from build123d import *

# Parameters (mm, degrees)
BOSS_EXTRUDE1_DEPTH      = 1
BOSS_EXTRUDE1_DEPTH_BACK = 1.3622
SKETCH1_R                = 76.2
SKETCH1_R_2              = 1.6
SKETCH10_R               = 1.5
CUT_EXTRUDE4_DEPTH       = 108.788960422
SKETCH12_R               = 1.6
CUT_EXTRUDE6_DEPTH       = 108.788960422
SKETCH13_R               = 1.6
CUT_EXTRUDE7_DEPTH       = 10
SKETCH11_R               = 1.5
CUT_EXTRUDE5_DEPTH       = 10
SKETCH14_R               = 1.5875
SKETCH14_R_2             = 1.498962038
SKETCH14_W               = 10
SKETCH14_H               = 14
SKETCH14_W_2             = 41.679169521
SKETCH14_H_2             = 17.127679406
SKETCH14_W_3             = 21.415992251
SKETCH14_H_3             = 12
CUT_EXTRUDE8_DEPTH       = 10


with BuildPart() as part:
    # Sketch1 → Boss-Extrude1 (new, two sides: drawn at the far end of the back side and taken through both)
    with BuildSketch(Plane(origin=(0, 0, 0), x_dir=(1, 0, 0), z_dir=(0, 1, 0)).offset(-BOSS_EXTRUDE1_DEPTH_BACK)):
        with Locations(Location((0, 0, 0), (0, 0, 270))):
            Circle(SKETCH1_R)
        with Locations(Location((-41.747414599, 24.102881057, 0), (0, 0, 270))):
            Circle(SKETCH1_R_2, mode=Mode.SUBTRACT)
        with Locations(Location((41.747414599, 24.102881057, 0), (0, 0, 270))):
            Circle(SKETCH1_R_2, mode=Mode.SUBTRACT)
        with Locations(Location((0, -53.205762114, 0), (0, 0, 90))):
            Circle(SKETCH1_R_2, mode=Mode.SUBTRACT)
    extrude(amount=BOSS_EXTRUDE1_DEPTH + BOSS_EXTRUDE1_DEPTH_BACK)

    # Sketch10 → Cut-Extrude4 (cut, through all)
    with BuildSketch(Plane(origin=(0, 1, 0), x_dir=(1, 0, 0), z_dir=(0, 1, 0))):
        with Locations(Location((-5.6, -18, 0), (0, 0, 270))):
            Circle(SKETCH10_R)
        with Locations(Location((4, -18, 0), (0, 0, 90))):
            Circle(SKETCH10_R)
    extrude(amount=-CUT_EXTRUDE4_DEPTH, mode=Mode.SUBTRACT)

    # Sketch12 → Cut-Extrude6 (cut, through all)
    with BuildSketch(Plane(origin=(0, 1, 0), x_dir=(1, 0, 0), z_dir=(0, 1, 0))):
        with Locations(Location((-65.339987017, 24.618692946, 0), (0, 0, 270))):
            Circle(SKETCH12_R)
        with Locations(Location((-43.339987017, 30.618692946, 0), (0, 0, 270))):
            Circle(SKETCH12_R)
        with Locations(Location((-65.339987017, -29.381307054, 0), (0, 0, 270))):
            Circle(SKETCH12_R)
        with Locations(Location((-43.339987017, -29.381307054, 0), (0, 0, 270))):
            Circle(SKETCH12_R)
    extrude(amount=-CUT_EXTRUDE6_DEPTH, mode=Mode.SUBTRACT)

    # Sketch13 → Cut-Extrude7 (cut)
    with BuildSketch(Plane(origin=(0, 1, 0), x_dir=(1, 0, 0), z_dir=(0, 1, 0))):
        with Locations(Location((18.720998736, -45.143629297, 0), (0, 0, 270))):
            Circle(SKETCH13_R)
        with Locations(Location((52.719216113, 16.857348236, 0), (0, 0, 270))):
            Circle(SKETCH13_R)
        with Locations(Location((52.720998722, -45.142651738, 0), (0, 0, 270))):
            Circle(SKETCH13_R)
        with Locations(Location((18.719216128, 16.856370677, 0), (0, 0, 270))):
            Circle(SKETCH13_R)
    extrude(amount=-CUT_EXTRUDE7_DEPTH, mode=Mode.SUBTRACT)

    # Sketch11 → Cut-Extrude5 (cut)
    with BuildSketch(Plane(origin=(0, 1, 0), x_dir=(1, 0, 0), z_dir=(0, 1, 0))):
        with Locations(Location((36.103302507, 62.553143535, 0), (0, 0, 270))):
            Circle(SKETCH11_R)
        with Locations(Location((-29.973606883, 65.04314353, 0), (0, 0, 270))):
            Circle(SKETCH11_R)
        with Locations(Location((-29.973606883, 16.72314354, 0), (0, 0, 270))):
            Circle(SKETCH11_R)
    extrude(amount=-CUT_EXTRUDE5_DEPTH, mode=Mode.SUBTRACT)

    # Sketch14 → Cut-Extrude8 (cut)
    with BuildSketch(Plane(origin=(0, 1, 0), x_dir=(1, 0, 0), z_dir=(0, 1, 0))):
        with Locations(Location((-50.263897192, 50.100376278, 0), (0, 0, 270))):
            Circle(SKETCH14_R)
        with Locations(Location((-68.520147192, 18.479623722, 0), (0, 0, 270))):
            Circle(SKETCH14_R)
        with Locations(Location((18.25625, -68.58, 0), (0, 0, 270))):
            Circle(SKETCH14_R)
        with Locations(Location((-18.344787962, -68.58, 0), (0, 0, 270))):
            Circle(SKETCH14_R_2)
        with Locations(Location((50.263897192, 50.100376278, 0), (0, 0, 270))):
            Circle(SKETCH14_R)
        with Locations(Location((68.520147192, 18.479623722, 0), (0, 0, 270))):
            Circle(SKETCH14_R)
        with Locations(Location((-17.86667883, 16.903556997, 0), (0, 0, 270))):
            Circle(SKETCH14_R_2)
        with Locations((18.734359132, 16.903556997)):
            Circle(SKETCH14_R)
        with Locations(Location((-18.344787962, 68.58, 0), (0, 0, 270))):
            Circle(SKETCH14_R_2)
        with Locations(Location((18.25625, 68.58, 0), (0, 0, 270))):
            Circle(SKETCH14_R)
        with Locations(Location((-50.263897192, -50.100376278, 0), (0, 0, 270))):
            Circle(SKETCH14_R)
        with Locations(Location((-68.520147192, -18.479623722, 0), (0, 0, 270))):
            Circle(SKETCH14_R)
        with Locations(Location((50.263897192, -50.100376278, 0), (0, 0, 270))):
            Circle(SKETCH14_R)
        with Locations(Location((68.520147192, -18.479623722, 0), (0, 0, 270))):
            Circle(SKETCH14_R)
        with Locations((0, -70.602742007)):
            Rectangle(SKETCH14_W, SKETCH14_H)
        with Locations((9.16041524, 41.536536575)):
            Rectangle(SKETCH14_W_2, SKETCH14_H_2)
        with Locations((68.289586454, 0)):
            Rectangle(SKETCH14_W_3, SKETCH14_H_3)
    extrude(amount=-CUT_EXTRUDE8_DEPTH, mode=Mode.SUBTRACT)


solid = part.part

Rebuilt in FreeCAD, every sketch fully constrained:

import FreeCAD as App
import Part
import Sketcher
Q = App.Units.Quantity

doc = App.newDocument("Part")
body = doc.addObject("PartDesign::Body", "Body")

# Sketch on XZ plane
sketch1 = body.newObject("Sketcher::SketchObject", "Sketch")
sketch1.AttachmentSupport = (doc.getObject("XZ_Plane"), [""])
sketch1.MapMode = "FlatFace"
sketch1.addGeometry([
    Part.Circle(App.Vector(0, 0, 0), App.Vector(0, 0, 1), 76.2),
    Part.Circle(App.Vector(-41.747415, -24.102881, 0), App.Vector(0, 0, 1), 1.6),
    Part.Circle(App.Vector(41.747415, -24.102881, 0), App.Vector(0, 0, 1), 1.6),
    Part.Circle(App.Vector(0, 53.205762, 0), App.Vector(0, 0, 1), 1.6),
], False)
sketch1.addConstraint([
    Sketcher.Constraint("Coincident", 0, 3, -1, 1),
    Sketcher.Constraint("Equal", 1, 2),
    Sketcher.Constraint("Equal", 2, 3),
    Sketcher.Constraint("Symmetric", 1, 3, 2, 3, -2),
    Sketcher.Constraint("PointOnObject", 3, 3, -2),
    Sketcher.Constraint("Diameter", 0, Q("152.4 mm")),
    Sketcher.Constraint("Diameter", 1, Q("3.2 mm")),
    Sketcher.Constraint("DistanceY", 1, 3, -1, 1, Q("24.102881 mm")),
    Sketcher.Constraint("DistanceX", 1, 3, 2, 3, Q("83.494829 mm")),
    Sketcher.Constraint("DistanceY", -1, 1, 3, 3, Q("53.205762 mm")),
])
pad1 = body.newObject("PartDesign::Pad", "Pad")
pad1.Profile = sketch1
pad1.Type = "TwoLengths"
pad1.Length = 1
pad1.Length2 = 1.3622
pad1.Reversed = True

# Sketch on XZ plane
sketch2 = body.newObject("Sketcher::SketchObject", "Sketch001")
sketch2.AttachmentSupport = (doc.getObject("XZ_Plane"), [""])
sketch2.MapMode = "FlatFace"
sketch2.AttachmentOffset = App.Placement(App.Vector(0, 0, -1), App.Rotation())
sketch2.addGeometry([
    Part.Circle(App.Vector(-5.6, 18, 0), App.Vector(0, 0, 1), 1.5),
    Part.Circle(App.Vector(4, 18, 0), App.Vector(0, 0, 1), 1.5),
], False)
sketch2.addConstraint([
    Sketcher.Constraint("Equal", 0, 1),
    Sketcher.Constraint("Horizontal", 0, 3, 1, 3),
    Sketcher.Constraint("Diameter", 0, Q("3 mm")),
    Sketcher.Constraint("DistanceY", -1, 1, 0, 3, Q("18 mm")),
    Sketcher.Constraint("DistanceX", -1, 1, 1, 3, Q("4 mm")),
    Sketcher.Constraint("DistanceX", 0, 3, -1, 1, Q("5.6 mm")),
])
pocket1 = body.newObject("PartDesign::Pocket", "Pocket")
pocket1.Profile = sketch2
pocket1.Type = "ThroughAll"
pocket1.Reversed = True

# Sketch on XZ plane
sketch3 = body.newObject("Sketcher::SketchObject", "Sketch002")
sketch3.AttachmentSupport = (doc.getObject("XZ_Plane"), [""])
sketch3.MapMode = "FlatFace"
sketch3.AttachmentOffset = App.Placement(App.Vector(0, 0, -1), App.Rotation())
sketch3.addGeometry([
    Part.Circle(App.Vector(-65.339987, -24.618693, 0), App.Vector(0, 0, 1), 1.6),
    Part.Circle(App.Vector(-43.339987, -30.618693, 0), App.Vector(0, 0, 1), 1.6),
    Part.Circle(App.Vector(-65.339987, 29.381307, 0), App.Vector(0, 0, 1), 1.6),
    Part.Circle(App.Vector(-43.339987, 29.381307, 0), App.Vector(0, 0, 1), 1.6),
], False)
sketch3.addConstraint([
    Sketcher.Constraint("Equal", 0, 1),
    Sketcher.Constraint("Equal", 1, 2),
    Sketcher.Constraint("Equal", 2, 3),
    Sketcher.Constraint("Horizontal", 2, 3, 3, 3),
    Sketcher.Constraint("Vertical", 0, 3, 2, 3),
    Sketcher.Constraint("Vertical", 1, 3, 3, 3),
    Sketcher.Constraint("Diameter", 0, Q("3.2 mm")),
    Sketcher.Constraint("DistanceX", 0, 3, 1, 3, Q("22 mm")),
    Sketcher.Constraint("DistanceY", 1, 3, 0, 3, Q("6 mm")),
    Sketcher.Constraint("DistanceY", 0, 3, 2, 3, Q("54 mm")),
    Sketcher.Constraint("DistanceX", 0, 3, -1, 1, Q("65.339987 mm")),
    Sketcher.Constraint("DistanceY", 0, 3, -1, 1, Q("24.618693 mm")),
])
pocket2 = body.newObject("PartDesign::Pocket", "Pocket001")
pocket2.Profile = sketch3
pocket2.Type = "ThroughAll"
pocket2.Reversed = True

# Sketch on XZ plane
sketch4 = body.newObject("Sketcher::SketchObject", "Sketch003")
sketch4.AttachmentSupport = (doc.getObject("XZ_Plane"), [""])
sketch4.MapMode = "FlatFace"
sketch4.AttachmentOffset = App.Placement(App.Vector(0, 0, -1), App.Rotation())
sketch4.addGeometry([
    Part.Circle(App.Vector(18.720999, 45.143629, 0), App.Vector(0, 0, 1), 1.6),
    Part.Circle(App.Vector(52.719216, -16.857348, 0), App.Vector(0, 0, 1), 1.6),
    Part.Circle(App.Vector(52.720999, 45.142652, 0), App.Vector(0, 0, 1), 1.6),
    Part.Circle(App.Vector(18.719216, -16.856371, 0), App.Vector(0, 0, 1), 1.6),
], False)
sketch4.addConstraint([
    Sketcher.Constraint("Equal", 0, 1),
    Sketcher.Constraint("Equal", 1, 2),
    Sketcher.Constraint("Equal", 2, 3),
    Sketcher.Constraint("Diameter", 0, Q("3.2 mm")),
    Sketcher.Constraint("DistanceX", 0, 3, 2, 3, Q("34 mm")),
    Sketcher.Constraint("DistanceY", 1, 3, 2, 3, Q("62 mm")),
    Sketcher.Constraint("DistanceX", 3, 3, 1, 3, Q("34 mm")),
    Sketcher.Constraint("DistanceY", 3, 3, 0, 3, Q("62 mm")),
    Sketcher.Constraint("DistanceX", -1, 1, 0, 3, Q("18.720999 mm")),
    Sketcher.Constraint("DistanceY", -1, 1, 0, 3, Q("45.143629 mm")),
    Sketcher.Constraint("DistanceY", 1, 3, -1, 1, Q("16.857348 mm")),
    Sketcher.Constraint("DistanceX", -1, 1, 1, 3, Q("52.719216 mm")),
])
pocket3 = body.newObject("PartDesign::Pocket", "Pocket002")
pocket3.Profile = sketch4
pocket3.Length = 10
pocket3.Reversed = True

# Sketch on XZ plane
sketch5 = body.newObject("Sketcher::SketchObject", "Sketch004")
sketch5.AttachmentSupport = (doc.getObject("XZ_Plane"), [""])
sketch5.MapMode = "FlatFace"
sketch5.AttachmentOffset = App.Placement(App.Vector(0, 0, -1), App.Rotation())
sketch5.addGeometry([
    Part.Circle(App.Vector(36.103303, -62.553144, 0), App.Vector(0, 0, 1), 1.5),
    Part.Circle(App.Vector(-29.973607, -65.043144, 0), App.Vector(0, 0, 1), 1.5),
    Part.Circle(App.Vector(-29.973607, -16.723144, 0), App.Vector(0, 0, 1), 1.5),
], False)
sketch5.addConstraint([
    Sketcher.Constraint("Equal", 0, 1),
    Sketcher.Constraint("Equal", 1, 2),
    Sketcher.Constraint("Vertical", 1, 3, 2, 3),
    Sketcher.Constraint("Diameter", 0, Q("3 mm")),
    Sketcher.Constraint("DistanceY", 1, 3, 0, 3, Q("2.49 mm")),
    Sketcher.Constraint("DistanceY", 1, 3, 2, 3, Q("48.32 mm")),
    Sketcher.Constraint("DistanceX", 1, 3, 0, 3, Q("66.076909 mm")),
    Sketcher.Constraint("DistanceX", -1, 1, 0, 3, Q("36.103303 mm")),
    Sketcher.Constraint("DistanceY", 0, 3, -1, 1, Q("62.553144 mm")),
])
pocket4 = body.newObject("PartDesign::Pocket", "Pocket003")
pocket4.Profile = sketch5
pocket4.Length = 10
pocket4.Reversed = True

# Sketch on XZ plane
sketch6 = body.newObject("Sketcher::SketchObject", "Sketch005")
sketch6.AttachmentSupport = (doc.getObject("XZ_Plane"), [""])
sketch6.MapMode = "FlatFace"
sketch6.AttachmentOffset = App.Placement(App.Vector(0, 0, -1), App.Rotation())
sketch6.addGeometry([
    Part.Circle(App.Vector(-50.263897, -50.100376, 0), App.Vector(0, 0, 1), 1.5875),  # 0
    Part.Circle(App.Vector(-68.520147, -18.479624, 0), App.Vector(0, 0, 1), 1.5875),  # 1
    Part.Circle(App.Vector(18.25625, 68.58, 0), App.Vector(0, 0, 1), 1.5875),  # 2
    Part.Circle(App.Vector(-18.344788, 68.58, 0), App.Vector(0, 0, 1), 1.498962),  # 3
    Part.Circle(App.Vector(50.263897, -50.100376, 0), App.Vector(0, 0, 1), 1.5875),  # 4
    Part.Circle(App.Vector(68.520147, -18.479624, 0), App.Vector(0, 0, 1), 1.5875),  # 5
    Part.Circle(App.Vector(-17.866679, -16.903557, 0), App.Vector(0, 0, 1), 1.498962),  # 6
    Part.Circle(App.Vector(18.734359, -16.903557, 0), App.Vector(0, 0, 1), 1.5875),  # 7
    Part.Circle(App.Vector(-18.344788, -68.58, 0), App.Vector(0, 0, 1), 1.498962),  # 8
    Part.Circle(App.Vector(18.25625, -68.58, 0), App.Vector(0, 0, 1), 1.5875),  # 9
    Part.Circle(App.Vector(-50.263897, 50.100376, 0), App.Vector(0, 0, 1), 1.5875),  # 10
    Part.Circle(App.Vector(-68.520147, 18.479624, 0), App.Vector(0, 0, 1), 1.5875),  # 11
    Part.Circle(App.Vector(50.263897, 50.100376, 0), App.Vector(0, 0, 1), 1.5875),  # 12
    Part.Circle(App.Vector(68.520147, 18.479624, 0), App.Vector(0, 0, 1), 1.5875),  # 13
    Part.LineSegment(App.Vector(-5, 63.602742, 0), App.Vector(-5, 77.602742, 0)),  # 14
    Part.LineSegment(App.Vector(-5, 77.602742, 0), App.Vector(5, 77.602742, 0)),  # 15
    Part.LineSegment(App.Vector(5, 77.602742, 0), App.Vector(5, 63.602742, 0)),  # 16
    Part.LineSegment(App.Vector(5, 63.602742, 0), App.Vector(-5, 63.602742, 0)),  # 17
    Part.LineSegment(App.Vector(-11.67917, -50.100376, 0), App.Vector(-11.67917, -32.972697, 0)),  # 18
    Part.LineSegment(App.Vector(-11.67917, -32.972697, 0), App.Vector(30, -32.972697, 0)),  # 19
    Part.LineSegment(App.Vector(30, -32.972697, 0), App.Vector(30, -50.100376, 0)),  # 20
    Part.LineSegment(App.Vector(30, -50.100376, 0), App.Vector(-11.67917, -50.100376, 0)),  # 21
    Part.LineSegment(App.Vector(57.58159, -6, 0), App.Vector(57.58159, 6, 0)),  # 22
    Part.LineSegment(App.Vector(57.58159, 6, 0), App.Vector(78.997583, 6, 0)),  # 23
    Part.LineSegment(App.Vector(78.997583, 6, 0), App.Vector(78.997583, -6, 0)),  # 24
    Part.LineSegment(App.Vector(78.997583, -6, 0), App.Vector(57.58159, -6, 0)),  # 25
], False)
sketch6.addConstraint([
    Sketcher.Constraint("Coincident", 14, 2, 15, 1),
    Sketcher.Constraint("Coincident", 15, 2, 16, 1),
    Sketcher.Constraint("Coincident", 16, 2, 17, 1),
    Sketcher.Constraint("Coincident", 17, 2, 14, 1),
    Sketcher.Constraint("Coincident", 18, 2, 19, 1),
    Sketcher.Constraint("Coincident", 19, 2, 20, 1),
    Sketcher.Constraint("Coincident", 20, 2, 21, 1),
    Sketcher.Constraint("Coincident", 21, 2, 18, 1),
    Sketcher.Constraint("Coincident", 22, 2, 23, 1),
    Sketcher.Constraint("Coincident", 23, 2, 24, 1),
    Sketcher.Constraint("Coincident", 24, 2, 25, 1),
    Sketcher.Constraint("Coincident", 25, 2, 22, 1),
    Sketcher.Constraint("Vertical", 14),
    Sketcher.Constraint("Horizontal", 15),
    Sketcher.Constraint("Vertical", 16),
    Sketcher.Constraint("Horizontal", 17),
    Sketcher.Constraint("Vertical", 18),
    Sketcher.Constraint("Horizontal", 19),
    Sketcher.Constraint("Vertical", 20),
    Sketcher.Constraint("Horizontal", 21),
    Sketcher.Constraint("Vertical", 22),
    Sketcher.Constraint("Horizontal", 23),
    Sketcher.Constraint("Vertical", 24),
    Sketcher.Constraint("Horizontal", 25),
    Sketcher.Constraint("Equal", 0, 1),
    Sketcher.Constraint("Equal", 1, 2),
    Sketcher.Constraint("Equal", 2, 4),
    Sketcher.Constraint("Equal", 4, 5),
    Sketcher.Constraint("Equal", 3, 6),
    Sketcher.Constraint("Equal", 5, 7),
    Sketcher.Constraint("Equal", 6, 8),
    Sketcher.Constraint("Equal", 7, 9),
    Sketcher.Constraint("Equal", 9, 10),
    Sketcher.Constraint("Equal", 10, 11),
    Sketcher.Constraint("Equal", 11, 12),
    Sketcher.Constraint("Equal", 12, 13),
    Sketcher.Constraint("Symmetric", 4, 3, 10, 3, -1, 1),
    Sketcher.Constraint("Symmetric", 5, 3, 11, 3, -1, 1),
    Sketcher.Constraint("Symmetric", 0, 3, 12, 3, -1, 1),
    Sketcher.Constraint("Symmetric", 1, 3, 13, 3, -1, 1),
    Sketcher.Constraint("Symmetric", 0, 3, 4, 3, -2),
    Sketcher.Constraint("Symmetric", 1, 3, 5, 3, -2),
    Sketcher.Constraint("Symmetric", 3, 3, 8, 3, -1),
    Sketcher.Constraint("Symmetric", 2, 3, 9, 3, -1),
    Sketcher.Constraint("Horizontal", 2, 3, 3, 3),
    Sketcher.Constraint("Horizontal", 6, 3, 7, 3),
    Sketcher.Constraint("Horizontal", 4, 3, 20, 2),
    Sketcher.Constraint("DistanceX", 15, 1, 15, 2, Q("10 mm")),
    Sketcher.Constraint("DistanceY", 14, 1, 14, 2, Q("14 mm")),
    Sketcher.Constraint("DistanceY", 22, 1, 22, 2, Q("12 mm")),
    Sketcher.Constraint("Diameter", 0, Q("3.175 mm")),
    Sketcher.Constraint("DistanceX", 14, 2, -1, 1, Q("5 mm")),
    Sketcher.Constraint("DistanceX", -1, 1, 19, 2, Q("30 mm")),
    Sketcher.Constraint("DistanceY", -1, 1, 22, 2, Q("6 mm")),
    Sketcher.Constraint("DistanceY", -1, 1, 2, 3, Q("68.58 mm")),
    Sketcher.Constraint("DistanceY", 1, 3, 10, 3, Q("68.58 mm")),
    Sketcher.Constraint("Diameter", 3, Q("2.997924 mm")),
    Sketcher.Constraint("DistanceX", 19, 1, 19, 2, Q("41.67917 mm")),
    Sketcher.Constraint("DistanceY", 18, 1, 18, 2, Q("17.127679 mm")),
    Sketcher.Constraint("DistanceX", 23, 1, 23, 2, Q("21.415992 mm")),
    Sketcher.Constraint("DistanceX", -1, 1, 2, 3, Q("18.25625 mm")),
    Sketcher.Constraint("DistanceX", 6, 3, -1, 1, Q("17.866679 mm")),
    Sketcher.Constraint("DistanceX", -1, 1, 7, 3, Q("18.734359 mm")),
    Sketcher.Constraint("DistanceX", -1, 1, 22, 2, Q("57.58159 mm")),
    Sketcher.Constraint("DistanceX", 1, 3, 0, 3, Q("18.25625 mm")),
    Sketcher.Constraint("DistanceX", 1, 3, 3, 3, Q("50.175359 mm")),
    Sketcher.Constraint("DistanceX", 0, 3, 6, 3, Q("32.397218 mm")),
    Sketcher.Constraint("DistanceY", 0, 3, 6, 3, Q("33.196819 mm")),
    Sketcher.Constraint("DistanceY", 11, 3, 14, 2, Q("59.123118 mm")),
    Sketcher.Constraint("DistanceY", 0, 3, -1, 1, Q("50.100376 mm")),
])
pocket5 = body.newObject("PartDesign::Pocket", "Pocket004")
pocket5.Profile = sketch6
pocket5.Length = 10
pocket5.Reversed = True

doc.recompute()
